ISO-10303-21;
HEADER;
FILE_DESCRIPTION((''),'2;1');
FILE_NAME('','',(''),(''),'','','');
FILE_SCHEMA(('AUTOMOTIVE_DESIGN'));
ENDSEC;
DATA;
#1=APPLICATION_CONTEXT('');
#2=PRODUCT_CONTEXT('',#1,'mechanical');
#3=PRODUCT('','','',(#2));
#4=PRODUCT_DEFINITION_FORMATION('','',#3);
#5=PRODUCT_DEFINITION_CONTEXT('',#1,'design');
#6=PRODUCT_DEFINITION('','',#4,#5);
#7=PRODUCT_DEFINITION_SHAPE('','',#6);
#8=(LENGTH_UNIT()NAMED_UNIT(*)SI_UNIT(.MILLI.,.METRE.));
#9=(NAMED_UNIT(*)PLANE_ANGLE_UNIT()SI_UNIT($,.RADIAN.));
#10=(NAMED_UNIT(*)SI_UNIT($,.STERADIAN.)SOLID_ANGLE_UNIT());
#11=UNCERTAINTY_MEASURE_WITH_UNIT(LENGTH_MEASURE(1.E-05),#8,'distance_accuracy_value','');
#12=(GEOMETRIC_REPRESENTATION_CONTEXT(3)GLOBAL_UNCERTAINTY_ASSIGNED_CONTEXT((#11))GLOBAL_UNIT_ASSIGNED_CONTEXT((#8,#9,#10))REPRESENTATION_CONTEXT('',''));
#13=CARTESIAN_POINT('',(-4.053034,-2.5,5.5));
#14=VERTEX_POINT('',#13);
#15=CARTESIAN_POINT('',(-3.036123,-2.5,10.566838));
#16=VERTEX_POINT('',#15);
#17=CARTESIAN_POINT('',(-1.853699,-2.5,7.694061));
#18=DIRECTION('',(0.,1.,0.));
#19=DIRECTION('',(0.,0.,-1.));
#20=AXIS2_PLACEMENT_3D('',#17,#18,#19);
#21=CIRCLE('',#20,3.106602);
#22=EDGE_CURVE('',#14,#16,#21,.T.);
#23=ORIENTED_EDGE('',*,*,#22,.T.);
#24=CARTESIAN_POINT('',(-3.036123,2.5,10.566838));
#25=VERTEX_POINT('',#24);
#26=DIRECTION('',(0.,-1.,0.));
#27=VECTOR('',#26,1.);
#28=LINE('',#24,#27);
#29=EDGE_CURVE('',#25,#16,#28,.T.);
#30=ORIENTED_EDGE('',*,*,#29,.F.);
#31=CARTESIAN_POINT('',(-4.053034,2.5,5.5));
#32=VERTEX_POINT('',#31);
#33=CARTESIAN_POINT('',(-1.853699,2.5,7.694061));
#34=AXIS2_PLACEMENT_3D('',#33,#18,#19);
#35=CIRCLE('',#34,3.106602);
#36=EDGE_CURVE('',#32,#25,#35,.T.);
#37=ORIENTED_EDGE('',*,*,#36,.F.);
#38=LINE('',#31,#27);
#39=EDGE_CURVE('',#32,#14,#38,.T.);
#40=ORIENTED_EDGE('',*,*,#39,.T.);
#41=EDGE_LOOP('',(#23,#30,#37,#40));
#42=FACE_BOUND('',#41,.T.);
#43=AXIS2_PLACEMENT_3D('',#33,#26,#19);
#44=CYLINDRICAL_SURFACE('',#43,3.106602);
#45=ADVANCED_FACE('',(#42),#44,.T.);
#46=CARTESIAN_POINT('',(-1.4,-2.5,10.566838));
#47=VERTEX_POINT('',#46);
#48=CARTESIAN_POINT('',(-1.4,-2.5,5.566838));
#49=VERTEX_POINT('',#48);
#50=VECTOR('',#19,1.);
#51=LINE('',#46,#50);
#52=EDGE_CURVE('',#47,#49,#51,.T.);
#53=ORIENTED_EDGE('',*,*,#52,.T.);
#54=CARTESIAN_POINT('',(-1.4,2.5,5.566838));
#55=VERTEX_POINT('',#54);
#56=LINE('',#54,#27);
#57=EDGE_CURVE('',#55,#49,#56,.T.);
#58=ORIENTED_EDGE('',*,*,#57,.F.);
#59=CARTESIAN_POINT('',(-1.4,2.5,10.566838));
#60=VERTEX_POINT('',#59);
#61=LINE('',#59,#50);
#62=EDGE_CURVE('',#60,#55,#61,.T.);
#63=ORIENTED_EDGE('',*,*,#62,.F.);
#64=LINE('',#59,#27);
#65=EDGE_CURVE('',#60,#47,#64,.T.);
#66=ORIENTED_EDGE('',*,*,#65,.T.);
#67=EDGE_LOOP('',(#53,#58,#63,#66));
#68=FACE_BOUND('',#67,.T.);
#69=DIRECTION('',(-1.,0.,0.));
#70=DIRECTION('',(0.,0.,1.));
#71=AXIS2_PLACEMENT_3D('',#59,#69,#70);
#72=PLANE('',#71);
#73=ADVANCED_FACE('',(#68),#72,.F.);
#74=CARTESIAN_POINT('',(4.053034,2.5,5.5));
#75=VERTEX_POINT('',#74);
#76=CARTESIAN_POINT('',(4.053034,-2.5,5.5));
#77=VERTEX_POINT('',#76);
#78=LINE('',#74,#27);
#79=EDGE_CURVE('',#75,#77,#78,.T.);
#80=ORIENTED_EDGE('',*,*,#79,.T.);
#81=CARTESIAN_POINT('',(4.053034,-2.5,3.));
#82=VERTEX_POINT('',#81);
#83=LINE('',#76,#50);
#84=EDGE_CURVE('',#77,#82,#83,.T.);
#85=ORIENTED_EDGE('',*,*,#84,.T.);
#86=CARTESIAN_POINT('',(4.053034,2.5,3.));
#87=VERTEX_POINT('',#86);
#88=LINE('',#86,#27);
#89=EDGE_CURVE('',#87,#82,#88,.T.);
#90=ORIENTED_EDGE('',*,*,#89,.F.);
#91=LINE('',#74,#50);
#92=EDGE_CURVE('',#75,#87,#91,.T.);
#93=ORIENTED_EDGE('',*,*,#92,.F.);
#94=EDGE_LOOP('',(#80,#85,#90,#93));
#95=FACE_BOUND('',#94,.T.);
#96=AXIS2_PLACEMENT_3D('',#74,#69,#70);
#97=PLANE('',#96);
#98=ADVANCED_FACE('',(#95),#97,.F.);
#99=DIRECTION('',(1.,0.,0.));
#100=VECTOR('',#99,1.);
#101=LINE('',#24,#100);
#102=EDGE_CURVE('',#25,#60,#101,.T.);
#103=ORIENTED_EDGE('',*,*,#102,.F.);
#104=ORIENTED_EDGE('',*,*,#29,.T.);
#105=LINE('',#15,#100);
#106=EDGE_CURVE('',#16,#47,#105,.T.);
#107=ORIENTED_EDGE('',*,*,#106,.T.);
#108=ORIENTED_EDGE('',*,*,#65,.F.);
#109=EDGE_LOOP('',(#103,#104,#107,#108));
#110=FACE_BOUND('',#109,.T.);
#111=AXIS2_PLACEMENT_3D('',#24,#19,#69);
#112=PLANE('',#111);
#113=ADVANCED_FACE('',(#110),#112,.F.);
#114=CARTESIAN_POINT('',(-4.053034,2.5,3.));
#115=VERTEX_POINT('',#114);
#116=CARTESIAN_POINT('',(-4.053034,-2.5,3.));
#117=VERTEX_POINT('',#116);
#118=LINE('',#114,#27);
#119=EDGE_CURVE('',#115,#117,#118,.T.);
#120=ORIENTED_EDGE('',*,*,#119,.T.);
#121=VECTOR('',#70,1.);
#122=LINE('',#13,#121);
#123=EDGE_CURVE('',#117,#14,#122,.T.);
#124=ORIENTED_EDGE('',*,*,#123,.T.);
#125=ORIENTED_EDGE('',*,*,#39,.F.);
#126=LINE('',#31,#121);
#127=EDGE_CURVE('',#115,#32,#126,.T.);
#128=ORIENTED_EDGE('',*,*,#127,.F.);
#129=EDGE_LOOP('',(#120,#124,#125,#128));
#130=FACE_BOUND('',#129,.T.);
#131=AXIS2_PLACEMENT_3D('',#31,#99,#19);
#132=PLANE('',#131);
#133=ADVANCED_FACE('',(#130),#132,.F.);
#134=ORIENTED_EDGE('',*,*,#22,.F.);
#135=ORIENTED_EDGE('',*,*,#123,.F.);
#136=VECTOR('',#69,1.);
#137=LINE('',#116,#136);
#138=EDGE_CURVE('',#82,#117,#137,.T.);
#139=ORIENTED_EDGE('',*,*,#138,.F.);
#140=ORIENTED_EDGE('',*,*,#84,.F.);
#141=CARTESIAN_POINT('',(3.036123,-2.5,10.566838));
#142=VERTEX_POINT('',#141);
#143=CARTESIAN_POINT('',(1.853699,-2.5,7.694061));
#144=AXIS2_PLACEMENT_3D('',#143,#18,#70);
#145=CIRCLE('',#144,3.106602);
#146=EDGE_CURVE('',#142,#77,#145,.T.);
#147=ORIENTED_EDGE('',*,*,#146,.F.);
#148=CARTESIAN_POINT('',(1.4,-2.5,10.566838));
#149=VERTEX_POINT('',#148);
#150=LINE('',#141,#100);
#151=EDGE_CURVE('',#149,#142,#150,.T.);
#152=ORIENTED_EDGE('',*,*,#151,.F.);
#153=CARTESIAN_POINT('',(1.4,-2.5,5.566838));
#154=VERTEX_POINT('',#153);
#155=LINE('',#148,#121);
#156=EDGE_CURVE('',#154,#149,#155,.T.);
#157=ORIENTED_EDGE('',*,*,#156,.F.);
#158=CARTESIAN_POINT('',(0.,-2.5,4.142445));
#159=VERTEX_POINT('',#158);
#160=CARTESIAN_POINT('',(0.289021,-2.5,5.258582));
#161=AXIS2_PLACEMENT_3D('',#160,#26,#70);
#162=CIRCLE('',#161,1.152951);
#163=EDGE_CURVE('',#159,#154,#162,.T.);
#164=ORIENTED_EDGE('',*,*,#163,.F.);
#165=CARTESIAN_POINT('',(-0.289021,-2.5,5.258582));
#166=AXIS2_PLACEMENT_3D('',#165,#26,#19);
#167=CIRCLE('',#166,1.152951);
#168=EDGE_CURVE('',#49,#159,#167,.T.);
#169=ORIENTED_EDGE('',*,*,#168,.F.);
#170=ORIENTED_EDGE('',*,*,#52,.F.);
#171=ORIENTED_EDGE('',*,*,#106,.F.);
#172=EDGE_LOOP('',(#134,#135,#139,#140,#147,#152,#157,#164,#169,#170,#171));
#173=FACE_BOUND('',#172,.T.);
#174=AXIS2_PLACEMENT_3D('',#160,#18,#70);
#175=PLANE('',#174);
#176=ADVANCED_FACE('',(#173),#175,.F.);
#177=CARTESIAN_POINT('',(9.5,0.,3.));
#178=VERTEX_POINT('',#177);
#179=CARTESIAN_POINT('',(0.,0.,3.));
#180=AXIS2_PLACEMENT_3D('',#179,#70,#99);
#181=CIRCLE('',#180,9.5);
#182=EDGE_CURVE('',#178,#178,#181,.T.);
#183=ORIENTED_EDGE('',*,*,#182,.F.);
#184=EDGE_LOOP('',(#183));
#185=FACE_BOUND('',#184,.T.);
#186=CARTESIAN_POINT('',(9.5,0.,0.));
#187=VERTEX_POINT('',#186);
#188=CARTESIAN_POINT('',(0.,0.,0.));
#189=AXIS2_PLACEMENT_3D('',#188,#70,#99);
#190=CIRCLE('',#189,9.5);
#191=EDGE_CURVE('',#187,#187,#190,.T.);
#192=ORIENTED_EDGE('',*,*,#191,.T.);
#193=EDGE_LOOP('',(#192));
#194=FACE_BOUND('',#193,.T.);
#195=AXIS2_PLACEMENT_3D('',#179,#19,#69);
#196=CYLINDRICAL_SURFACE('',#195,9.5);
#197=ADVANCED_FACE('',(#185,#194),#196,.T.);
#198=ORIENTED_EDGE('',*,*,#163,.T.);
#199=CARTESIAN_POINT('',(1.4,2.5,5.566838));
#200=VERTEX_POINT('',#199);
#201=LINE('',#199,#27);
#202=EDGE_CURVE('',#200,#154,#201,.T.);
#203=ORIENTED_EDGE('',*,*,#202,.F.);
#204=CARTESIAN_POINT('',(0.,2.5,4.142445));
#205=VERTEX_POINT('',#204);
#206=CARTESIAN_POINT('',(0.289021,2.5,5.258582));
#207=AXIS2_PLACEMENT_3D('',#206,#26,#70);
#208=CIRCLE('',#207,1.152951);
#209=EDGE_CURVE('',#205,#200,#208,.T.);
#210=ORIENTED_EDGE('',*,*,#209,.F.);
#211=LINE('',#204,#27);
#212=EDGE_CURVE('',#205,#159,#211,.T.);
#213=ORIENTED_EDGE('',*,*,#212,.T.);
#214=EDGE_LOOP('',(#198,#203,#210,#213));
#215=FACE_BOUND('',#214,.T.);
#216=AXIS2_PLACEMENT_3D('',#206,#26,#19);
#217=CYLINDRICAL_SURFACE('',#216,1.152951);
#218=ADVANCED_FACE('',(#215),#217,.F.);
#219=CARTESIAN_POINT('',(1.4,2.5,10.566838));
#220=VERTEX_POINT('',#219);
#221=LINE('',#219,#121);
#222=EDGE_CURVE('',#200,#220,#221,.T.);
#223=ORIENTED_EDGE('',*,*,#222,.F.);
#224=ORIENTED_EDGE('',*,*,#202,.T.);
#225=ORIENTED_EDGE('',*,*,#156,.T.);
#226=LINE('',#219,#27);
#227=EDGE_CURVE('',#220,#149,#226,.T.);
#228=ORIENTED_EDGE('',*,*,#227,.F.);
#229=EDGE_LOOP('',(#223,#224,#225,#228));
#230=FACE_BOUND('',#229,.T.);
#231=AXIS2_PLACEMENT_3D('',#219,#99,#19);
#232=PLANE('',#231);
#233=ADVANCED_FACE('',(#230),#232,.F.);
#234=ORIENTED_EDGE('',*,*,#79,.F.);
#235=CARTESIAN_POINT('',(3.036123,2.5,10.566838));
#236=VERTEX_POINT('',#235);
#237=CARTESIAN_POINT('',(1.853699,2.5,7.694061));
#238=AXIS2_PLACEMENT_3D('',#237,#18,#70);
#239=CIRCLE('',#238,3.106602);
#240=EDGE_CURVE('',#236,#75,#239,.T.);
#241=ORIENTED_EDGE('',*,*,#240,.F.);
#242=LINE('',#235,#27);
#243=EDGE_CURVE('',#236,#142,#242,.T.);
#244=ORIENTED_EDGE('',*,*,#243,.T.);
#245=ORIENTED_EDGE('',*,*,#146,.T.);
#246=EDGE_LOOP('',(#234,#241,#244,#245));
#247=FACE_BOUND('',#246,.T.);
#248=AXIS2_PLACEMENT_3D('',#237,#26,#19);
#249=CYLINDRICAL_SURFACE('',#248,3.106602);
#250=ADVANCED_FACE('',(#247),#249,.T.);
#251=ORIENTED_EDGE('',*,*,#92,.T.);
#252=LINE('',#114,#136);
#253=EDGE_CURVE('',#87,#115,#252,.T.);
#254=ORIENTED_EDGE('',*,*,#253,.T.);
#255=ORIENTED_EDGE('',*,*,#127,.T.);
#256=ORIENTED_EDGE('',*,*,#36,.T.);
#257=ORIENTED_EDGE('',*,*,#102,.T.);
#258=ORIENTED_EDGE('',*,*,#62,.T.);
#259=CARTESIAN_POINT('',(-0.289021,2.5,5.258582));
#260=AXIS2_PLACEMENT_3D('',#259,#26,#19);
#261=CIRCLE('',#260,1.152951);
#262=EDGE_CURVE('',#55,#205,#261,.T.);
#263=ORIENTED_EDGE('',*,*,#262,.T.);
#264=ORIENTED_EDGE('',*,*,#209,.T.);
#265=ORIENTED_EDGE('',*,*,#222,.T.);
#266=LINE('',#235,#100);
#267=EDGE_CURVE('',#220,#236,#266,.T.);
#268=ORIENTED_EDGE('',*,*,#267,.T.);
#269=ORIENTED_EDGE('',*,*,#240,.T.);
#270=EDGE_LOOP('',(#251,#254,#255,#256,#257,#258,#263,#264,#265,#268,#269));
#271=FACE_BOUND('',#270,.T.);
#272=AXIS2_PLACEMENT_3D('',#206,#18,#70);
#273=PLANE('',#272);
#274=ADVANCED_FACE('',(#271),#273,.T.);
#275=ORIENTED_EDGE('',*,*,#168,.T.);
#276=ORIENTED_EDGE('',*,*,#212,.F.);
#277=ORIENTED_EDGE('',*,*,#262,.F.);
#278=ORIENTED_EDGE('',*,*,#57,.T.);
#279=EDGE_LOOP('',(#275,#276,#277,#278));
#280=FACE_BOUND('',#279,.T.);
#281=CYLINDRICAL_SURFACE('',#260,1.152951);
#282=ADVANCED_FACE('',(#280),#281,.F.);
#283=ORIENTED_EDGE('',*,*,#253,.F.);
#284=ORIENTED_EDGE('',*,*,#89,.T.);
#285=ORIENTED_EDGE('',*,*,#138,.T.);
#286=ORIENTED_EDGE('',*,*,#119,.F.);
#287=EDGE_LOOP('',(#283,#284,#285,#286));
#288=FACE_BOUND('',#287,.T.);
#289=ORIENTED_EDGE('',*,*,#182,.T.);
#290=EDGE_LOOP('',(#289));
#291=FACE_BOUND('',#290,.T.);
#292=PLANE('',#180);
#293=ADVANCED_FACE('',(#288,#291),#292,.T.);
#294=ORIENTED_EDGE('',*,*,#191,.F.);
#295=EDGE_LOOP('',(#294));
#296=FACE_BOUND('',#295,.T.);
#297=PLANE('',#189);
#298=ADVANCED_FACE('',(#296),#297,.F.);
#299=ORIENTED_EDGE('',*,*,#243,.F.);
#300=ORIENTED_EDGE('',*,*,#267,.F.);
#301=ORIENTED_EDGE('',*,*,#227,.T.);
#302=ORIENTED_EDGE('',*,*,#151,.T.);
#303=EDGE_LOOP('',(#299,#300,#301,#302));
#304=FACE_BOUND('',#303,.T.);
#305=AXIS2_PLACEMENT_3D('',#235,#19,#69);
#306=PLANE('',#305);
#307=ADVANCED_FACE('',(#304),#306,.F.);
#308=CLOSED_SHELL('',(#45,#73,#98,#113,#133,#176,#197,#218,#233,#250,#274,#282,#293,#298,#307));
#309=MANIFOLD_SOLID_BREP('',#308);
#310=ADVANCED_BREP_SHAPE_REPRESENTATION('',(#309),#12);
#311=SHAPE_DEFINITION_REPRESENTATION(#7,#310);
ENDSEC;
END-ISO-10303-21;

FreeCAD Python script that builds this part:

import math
import FreeCAD as App
import Part
import Sketcher
from FreeCAD import Vector
Q = App.Units.Quantity

doc = App.newDocument("Part")
body = doc.addObject("PartDesign::Body", "Body")

sketch1 = body.newObject("Sketcher::SketchObject", "Sketch")
sketch1.AttachmentSupport = (doc.getObject("XY_Plane"), [""])
sketch1.MapMode = "FlatFace"
sketch1.addGeometry(Part.Circle(Vector(0, 0, 0), Vector(0, 0, 1), 10), False)
sketch1.addConstraint([
    Sketcher.Constraint("Coincident", 0, 3, -1, 1),
    Sketcher.Constraint("Diameter", 0, Q("19 mm")),
])
pad1 = body.newObject("PartDesign::Pad", "Pad")
pad1.Profile = sketch1
pad1.Length = 3

sketch2 = body.newObject("Sketcher::SketchObject", "Sketch001")
sketch2.AttachmentSupport = (doc.getObject("XZ_Plane"), [""])
sketch2.MapMode = "FlatFace"
sketch2.addGeometry([
    Part.LineSegment(Vector(-4.1, 3, 0), Vector(-4.1, 5.5, 0)),
    Part.ArcOfCircle(Part.Circle(Vector(-1.9, 7.7, 0), Vector(0, 0, 1), 3.1), math.radians(112), math.radians(225)),
    Part.LineSegment(Vector(-3, 10.6, 0), Vector(-1.4, 10.6, 0)),
    Part.LineSegment(Vector(-1.4, 10.6, 0), Vector(-1.4, 5.6, 0)),
    Part.ArcOfCircle(Part.Circle(Vector(-0.3, 5.3, 0), Vector(0, 0, 1), 1.2), math.radians(164), math.radians(285)),
    Part.ArcOfCircle(Part.Circle(Vector(0.3, 5.3, 0), Vector(0, 0, 1), 1.2), math.radians(-105), math.radians(16)),
    Part.LineSegment(Vector(1.4, 5.6, 0), Vector(1.4, 10.6, 0)),
    Part.LineSegment(Vector(1.4, 10.6, 0), Vector(3, 10.6, 0)),
    Part.ArcOfCircle(Part.Circle(Vector(1.9, 7.7, 0), Vector(0, 0, 1), 3.1), math.radians(-45), math.radians(68)),
    Part.LineSegment(Vector(4.1, 5.5, 0), Vector(4.1, 3, 0)),
    Part.LineSegment(Vector(4.1, 3, 0), Vector(-4.1, 3, 0)),
], False)
sketch2.addConstraint([
    Sketcher.Constraint("Coincident", 0, 2, 1, 2),
    Sketcher.Constraint("Coincident", 1, 1, 2, 1),
    Sketcher.Constraint("Coincident", 2, 2, 3, 1),
    Sketcher.Constraint("Coincident", 3, 2, 4, 1),
    Sketcher.Constraint("Coincident", 4, 2, 5, 1),
    Sketcher.Constraint("Coincident", 5, 2, 6, 1),
    Sketcher.Constraint("Coincident", 6, 2, 7, 1),
    Sketcher.Constraint("Coincident", 7, 2, 8, 2),
    Sketcher.Constraint("Coincident", 8, 1, 9, 1),
    Sketcher.Constraint("Coincident", 9, 2, 10, 1),
    Sketcher.Constraint("Coincident", 10, 2, 0, 1),
    Sketcher.Constraint("Vertical", 0),
    Sketcher.Constraint("Horizontal", 2),
    Sketcher.Constraint("Vertical", 3),
    Sketcher.Constraint("Vertical", 6),
    Sketcher.Constraint("Horizontal", 7),
    Sketcher.Constraint("Vertical", 9),
    Sketcher.Constraint("Horizontal", 10),
    Sketcher.Constraint("Equal", 4, 5),
    Sketcher.Constraint("Equal", 1, 8),
    Sketcher.Constraint("Symmetric", 4, 3, 5, 3, -2),
    Sketcher.Constraint("Symmetric", 1, 3, 8, 3, -2),
    Sketcher.Constraint("Symmetric", 2, 2, 6, 2, -2),
    Sketcher.Constraint("Horizontal", 0, 2, 8, 1),
    Sketcher.Constraint("DistanceY", 3, 2, 3, 1, Q("5 mm")),
    Sketcher.Constraint("DistanceY", 0, 1, 0, 2, Q("2.5 mm")),
    Sketcher.Constraint("DistanceY", -1, 1, 9, 2, Q("3 mm")),
    Sketcher.Constraint("DistanceX", 2, 2, -1, 1, Q("1.4 mm")),
    Sketcher.Constraint("Radius", 4, Q("1.152951 mm")),
    Sketcher.Constraint("Radius", 1, Q("3.106602 mm")),
    Sketcher.Constraint("DistanceX", 1, 3, -1, 1, Q("1.853699 mm")),
    Sketcher.Constraint("DistanceX", 2, 1, 2, 2, Q("1.636123 mm")),
    Sketcher.Constraint("DistanceX", 10, 2, 10, 1, Q("8.106068 mm")),
    Sketcher.Constraint("DistanceX", 4, 3, -1, 1, Q("0.289021 mm")),
])
pad2 = body.newObject("PartDesign::Pad", "Pad001")
pad2.Profile = sketch2
pad2.Length = 5
pad2.Midplane = True

doc.recompute()
